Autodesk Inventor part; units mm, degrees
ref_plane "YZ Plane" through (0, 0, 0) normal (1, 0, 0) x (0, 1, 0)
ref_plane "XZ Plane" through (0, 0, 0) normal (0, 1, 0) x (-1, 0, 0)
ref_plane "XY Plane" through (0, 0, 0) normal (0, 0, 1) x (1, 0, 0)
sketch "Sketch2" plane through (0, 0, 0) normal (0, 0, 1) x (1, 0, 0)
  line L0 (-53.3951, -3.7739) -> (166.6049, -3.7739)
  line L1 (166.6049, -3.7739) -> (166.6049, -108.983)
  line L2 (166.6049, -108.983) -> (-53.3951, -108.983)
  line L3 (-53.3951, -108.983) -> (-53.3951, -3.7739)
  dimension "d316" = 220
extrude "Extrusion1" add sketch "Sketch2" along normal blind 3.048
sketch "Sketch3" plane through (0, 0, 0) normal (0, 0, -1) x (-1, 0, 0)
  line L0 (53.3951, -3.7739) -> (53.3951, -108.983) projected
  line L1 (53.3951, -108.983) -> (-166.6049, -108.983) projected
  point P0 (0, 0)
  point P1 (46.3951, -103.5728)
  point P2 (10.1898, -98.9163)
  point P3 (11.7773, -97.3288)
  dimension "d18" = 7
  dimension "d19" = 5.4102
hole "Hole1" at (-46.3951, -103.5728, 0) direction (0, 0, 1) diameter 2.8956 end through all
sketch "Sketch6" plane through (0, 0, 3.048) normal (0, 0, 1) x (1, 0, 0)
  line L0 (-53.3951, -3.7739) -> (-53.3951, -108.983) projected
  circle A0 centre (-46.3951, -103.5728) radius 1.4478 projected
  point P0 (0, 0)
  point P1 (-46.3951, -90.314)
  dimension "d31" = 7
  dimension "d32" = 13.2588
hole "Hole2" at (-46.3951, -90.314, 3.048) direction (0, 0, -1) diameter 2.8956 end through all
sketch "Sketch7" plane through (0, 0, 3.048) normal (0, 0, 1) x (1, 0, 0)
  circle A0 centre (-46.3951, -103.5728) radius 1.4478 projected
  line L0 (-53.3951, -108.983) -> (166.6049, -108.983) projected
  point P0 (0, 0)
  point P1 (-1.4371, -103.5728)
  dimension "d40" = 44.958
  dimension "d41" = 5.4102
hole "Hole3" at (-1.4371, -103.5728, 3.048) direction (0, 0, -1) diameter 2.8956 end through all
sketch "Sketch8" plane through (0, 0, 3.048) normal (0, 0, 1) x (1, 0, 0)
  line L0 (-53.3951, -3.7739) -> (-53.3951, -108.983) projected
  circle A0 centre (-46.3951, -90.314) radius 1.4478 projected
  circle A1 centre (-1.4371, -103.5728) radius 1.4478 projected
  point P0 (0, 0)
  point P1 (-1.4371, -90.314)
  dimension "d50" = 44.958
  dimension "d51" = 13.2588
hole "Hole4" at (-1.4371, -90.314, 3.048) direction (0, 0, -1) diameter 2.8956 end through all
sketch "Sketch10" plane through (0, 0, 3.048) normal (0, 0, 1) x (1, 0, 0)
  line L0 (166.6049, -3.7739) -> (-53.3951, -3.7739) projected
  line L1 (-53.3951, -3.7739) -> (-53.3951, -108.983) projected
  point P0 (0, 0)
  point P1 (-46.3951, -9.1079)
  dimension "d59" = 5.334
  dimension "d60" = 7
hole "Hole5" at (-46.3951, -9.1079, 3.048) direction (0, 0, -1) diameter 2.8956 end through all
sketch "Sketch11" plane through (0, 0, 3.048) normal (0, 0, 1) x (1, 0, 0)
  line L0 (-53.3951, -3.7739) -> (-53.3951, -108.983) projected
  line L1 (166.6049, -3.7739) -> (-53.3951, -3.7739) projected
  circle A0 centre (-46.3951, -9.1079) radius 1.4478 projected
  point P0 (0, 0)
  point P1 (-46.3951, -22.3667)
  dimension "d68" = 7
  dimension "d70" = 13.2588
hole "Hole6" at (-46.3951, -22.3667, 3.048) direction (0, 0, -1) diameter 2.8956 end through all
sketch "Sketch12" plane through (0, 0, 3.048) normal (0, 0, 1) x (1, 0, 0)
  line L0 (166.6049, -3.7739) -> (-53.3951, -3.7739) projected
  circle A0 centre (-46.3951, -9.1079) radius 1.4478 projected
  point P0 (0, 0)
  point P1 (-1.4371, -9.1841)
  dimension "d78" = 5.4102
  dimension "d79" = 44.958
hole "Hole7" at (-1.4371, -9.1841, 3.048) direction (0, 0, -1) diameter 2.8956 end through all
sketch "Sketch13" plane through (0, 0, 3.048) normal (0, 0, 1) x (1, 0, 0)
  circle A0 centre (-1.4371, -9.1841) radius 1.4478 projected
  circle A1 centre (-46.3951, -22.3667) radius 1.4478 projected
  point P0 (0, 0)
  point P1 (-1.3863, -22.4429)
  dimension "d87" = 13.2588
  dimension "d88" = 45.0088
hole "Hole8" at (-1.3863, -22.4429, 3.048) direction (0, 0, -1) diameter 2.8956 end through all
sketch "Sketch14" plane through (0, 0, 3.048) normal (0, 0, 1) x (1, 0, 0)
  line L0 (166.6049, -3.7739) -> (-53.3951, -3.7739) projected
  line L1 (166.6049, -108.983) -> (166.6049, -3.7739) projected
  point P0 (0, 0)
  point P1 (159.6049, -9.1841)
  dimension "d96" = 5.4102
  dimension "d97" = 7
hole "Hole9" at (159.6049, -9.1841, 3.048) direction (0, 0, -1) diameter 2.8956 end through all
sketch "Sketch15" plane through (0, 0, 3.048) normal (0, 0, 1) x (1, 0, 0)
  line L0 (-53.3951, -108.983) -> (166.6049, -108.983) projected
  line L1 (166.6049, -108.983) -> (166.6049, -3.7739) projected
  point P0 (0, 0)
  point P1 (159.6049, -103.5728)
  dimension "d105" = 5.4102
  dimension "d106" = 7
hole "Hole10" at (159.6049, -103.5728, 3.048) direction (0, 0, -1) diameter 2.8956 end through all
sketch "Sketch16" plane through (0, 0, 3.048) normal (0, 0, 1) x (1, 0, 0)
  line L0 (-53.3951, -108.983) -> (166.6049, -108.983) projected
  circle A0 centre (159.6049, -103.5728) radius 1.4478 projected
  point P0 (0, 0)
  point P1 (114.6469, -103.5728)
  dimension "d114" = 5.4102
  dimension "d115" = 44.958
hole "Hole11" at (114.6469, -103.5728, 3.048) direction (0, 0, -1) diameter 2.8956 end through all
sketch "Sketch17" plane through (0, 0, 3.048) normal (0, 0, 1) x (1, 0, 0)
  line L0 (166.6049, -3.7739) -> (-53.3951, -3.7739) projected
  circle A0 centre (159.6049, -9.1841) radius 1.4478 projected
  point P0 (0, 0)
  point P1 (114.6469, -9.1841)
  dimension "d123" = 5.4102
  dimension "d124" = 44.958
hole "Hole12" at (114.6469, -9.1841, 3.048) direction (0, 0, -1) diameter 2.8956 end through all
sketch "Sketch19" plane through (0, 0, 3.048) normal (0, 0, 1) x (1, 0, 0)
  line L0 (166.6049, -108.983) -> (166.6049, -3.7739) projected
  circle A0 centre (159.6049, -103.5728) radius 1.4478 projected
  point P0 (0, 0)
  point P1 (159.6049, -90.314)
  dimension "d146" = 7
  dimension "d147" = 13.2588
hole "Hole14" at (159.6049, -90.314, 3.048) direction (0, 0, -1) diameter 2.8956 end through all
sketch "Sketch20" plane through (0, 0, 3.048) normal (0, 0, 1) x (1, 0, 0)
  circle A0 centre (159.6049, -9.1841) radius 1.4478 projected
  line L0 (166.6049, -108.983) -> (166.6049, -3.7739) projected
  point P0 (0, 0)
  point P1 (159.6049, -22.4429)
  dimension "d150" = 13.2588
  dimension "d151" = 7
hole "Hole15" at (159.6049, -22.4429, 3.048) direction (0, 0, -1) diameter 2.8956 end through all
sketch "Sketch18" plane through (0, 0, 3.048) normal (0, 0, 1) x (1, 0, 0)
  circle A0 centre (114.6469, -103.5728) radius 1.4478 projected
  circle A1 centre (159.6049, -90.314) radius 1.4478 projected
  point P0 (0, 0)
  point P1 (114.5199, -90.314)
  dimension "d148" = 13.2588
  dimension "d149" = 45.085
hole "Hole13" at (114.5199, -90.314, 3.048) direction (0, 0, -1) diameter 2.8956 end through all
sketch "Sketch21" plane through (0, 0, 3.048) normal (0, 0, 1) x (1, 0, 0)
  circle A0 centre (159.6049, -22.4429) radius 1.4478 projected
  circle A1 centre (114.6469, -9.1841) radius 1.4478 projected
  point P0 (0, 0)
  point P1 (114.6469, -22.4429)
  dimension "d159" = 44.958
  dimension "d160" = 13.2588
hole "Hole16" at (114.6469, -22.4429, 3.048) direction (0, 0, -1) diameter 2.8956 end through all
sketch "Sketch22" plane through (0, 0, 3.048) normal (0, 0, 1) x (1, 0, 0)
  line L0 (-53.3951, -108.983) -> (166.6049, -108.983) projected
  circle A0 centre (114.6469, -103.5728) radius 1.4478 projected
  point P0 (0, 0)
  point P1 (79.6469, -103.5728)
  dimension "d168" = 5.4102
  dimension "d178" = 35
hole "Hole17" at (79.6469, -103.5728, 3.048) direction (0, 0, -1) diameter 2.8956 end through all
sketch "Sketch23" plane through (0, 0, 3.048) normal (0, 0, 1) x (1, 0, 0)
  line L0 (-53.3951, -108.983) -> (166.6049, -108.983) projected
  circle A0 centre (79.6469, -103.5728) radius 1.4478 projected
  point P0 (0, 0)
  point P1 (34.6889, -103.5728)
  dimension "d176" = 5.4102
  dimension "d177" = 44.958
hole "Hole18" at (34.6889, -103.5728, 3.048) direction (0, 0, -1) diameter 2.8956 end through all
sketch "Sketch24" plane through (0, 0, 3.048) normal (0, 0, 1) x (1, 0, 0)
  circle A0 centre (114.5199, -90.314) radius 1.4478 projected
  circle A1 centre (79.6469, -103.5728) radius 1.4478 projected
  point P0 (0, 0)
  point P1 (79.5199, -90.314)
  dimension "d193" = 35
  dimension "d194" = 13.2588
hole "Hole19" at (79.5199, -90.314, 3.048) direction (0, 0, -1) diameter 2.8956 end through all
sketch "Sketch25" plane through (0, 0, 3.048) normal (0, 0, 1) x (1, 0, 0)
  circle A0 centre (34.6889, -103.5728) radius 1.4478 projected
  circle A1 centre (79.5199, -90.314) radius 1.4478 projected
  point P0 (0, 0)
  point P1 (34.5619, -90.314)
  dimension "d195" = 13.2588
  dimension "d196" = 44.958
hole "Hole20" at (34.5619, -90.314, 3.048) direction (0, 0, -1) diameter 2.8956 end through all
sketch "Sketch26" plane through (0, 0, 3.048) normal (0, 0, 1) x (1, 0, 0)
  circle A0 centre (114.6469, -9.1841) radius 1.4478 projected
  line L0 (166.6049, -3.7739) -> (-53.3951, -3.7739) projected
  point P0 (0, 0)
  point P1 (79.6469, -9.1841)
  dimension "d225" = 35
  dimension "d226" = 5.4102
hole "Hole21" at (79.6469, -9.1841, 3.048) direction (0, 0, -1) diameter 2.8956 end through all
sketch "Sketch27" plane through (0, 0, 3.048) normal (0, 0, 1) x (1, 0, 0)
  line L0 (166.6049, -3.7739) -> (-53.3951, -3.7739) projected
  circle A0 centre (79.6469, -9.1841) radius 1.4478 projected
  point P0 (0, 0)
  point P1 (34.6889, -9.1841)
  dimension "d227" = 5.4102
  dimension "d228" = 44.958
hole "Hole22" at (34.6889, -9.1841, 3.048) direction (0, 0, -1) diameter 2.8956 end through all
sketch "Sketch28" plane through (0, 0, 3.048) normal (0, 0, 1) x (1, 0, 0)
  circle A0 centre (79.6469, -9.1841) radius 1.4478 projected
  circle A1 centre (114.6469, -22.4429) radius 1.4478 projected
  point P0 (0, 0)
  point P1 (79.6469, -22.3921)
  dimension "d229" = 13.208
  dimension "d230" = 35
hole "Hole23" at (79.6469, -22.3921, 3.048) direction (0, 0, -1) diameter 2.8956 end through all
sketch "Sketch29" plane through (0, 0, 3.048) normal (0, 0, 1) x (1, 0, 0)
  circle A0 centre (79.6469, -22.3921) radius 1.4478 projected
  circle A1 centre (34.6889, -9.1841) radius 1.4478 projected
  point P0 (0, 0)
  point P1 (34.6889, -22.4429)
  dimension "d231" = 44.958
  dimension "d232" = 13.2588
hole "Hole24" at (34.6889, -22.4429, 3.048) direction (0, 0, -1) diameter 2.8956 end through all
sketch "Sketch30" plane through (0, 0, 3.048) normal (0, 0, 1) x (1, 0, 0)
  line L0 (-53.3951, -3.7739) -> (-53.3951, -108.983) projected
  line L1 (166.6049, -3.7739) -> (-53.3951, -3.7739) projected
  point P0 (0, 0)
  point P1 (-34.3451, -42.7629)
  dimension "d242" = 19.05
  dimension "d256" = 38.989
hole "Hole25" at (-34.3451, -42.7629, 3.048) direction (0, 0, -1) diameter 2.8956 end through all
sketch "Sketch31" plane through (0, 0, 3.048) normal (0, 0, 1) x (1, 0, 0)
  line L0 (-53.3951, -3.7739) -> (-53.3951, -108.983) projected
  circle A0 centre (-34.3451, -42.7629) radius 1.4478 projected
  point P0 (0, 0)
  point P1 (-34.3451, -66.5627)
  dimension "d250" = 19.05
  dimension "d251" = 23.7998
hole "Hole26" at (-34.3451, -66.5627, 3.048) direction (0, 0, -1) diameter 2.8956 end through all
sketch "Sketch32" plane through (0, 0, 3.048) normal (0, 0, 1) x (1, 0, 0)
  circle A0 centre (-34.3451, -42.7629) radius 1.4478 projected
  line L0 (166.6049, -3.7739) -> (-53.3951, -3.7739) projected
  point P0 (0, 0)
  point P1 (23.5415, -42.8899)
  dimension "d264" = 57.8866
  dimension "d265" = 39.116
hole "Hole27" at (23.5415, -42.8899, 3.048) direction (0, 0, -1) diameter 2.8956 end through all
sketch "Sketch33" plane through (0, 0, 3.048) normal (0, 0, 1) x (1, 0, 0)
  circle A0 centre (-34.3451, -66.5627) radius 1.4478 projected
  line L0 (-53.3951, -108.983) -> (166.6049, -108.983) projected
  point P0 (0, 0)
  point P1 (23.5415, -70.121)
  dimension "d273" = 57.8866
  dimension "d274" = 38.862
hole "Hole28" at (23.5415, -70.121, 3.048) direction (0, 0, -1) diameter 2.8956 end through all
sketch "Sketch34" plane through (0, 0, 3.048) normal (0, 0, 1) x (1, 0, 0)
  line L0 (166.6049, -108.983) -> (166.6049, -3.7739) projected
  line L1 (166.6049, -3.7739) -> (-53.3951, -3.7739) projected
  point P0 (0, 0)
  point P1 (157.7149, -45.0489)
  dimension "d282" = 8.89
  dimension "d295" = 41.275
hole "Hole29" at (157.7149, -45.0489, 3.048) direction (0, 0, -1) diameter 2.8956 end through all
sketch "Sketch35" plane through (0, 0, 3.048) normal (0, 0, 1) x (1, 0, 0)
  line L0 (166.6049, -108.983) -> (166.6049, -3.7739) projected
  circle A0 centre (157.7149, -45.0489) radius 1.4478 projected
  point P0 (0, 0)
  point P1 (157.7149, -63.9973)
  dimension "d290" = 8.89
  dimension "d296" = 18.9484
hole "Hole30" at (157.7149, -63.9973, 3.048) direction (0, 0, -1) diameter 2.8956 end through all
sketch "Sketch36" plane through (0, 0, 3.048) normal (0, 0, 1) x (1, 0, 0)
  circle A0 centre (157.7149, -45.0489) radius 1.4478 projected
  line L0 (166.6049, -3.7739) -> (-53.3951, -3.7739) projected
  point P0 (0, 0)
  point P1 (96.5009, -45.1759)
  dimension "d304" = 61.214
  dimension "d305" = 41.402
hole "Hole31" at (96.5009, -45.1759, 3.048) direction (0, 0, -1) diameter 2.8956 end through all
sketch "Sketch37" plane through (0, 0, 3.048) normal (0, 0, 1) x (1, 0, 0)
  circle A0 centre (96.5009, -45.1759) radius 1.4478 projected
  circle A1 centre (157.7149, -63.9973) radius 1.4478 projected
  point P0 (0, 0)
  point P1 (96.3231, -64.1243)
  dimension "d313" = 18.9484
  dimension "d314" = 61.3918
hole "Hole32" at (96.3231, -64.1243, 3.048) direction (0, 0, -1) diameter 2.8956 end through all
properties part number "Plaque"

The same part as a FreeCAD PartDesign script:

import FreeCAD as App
import Part
import Sketcher
Q = App.Units.Quantity


def add_polygon(sketch, points):
    """Adds a closed chain of lines whose ends are joined by coincident constraints."""
    first, n = sketch.GeometryCount, len(points)
    for a, b in zip(points, points[1:] + points[:1]):
        sketch.addGeometry(Part.LineSegment(App.Vector(*a, 0), App.Vector(*b, 0)), False)
    for i in range(n):
        sketch.addConstraint(Sketcher.Constraint("Coincident", first + i, 2, first + (i + 1) % n, 1))

doc = App.newDocument("Part")
body = doc.addObject("PartDesign::Body", "Body")

# Sketch on XY plane
sketch1 = doc.addObject("Sketcher::SketchObject", "Sketch")
body.addObject(sketch1)
sketch1.AttachmentSupport = (doc.XY_Plane, [""])
sketch1.MapMode = "FlatFace"
add_polygon(sketch1, [(167, -4), (-53, -4), (-53, -109), (167, -109)])  # lines 0-3
sketch1.addConstraint([
    Sketcher.Constraint("Horizontal", 0),
    Sketcher.Constraint("Vertical", 1),
    Sketcher.Constraint("Horizontal", 2),
    Sketcher.Constraint("Vertical", 3),
    Sketcher.Constraint("DistanceX", 0, 2, 0, 1, 220.0),
    Sketcher.Constraint("DistanceY", 1, 2, 1, 1, Q("4.1421 in")),
    Sketcher.Constraint("DistanceX", 0, 2, -1, 1, 53.395),
    Sketcher.Constraint("DistanceY", 0, 2, -1, 1, 3.774),
])
pad1 = doc.addObject("PartDesign::Pad", "Pad")
body.addObject(pad1)
pad1.Profile = sketch1
pad1.Length = Q("0.12 in")

# Sketch on XY plane
sketch2 = doc.addObject("Sketcher::SketchObject", "Sketch001")
body.addObject(sketch2)
sketch2.AttachmentSupport = (doc.XY_Plane, [""])
sketch2.MapMode = "FlatFace"
sketch2.addGeometry(Part.Circle(App.Vector(-46.4, -103.6, 0), App.Vector(0, 0, 1), 1.4), False)
sketch2.addConstraint([
    Sketcher.Constraint("Diameter", 0, Q("0.114 in")),
    Sketcher.Constraint("DistanceX", 0, 3, -1, 1, 46.395),
    Sketcher.Constraint("DistanceY", 0, 3, -1, 1, 103.5728),
])
doc.recompute()
hole = doc.addObject("PartDesign::Hole", "Hole")
body.addObject(hole)
hole.Profile = sketch2
hole.ThreadType = "None"
hole.Diameter = Q("0.114 in")
hole.DepthType = "ThroughAll"
hole.Reversed = True

# Sketch on XY plane
sketch3 = doc.addObject("Sketcher::SketchObject", "Sketch002")
body.addObject(sketch3)
sketch3.AttachmentSupport = (doc.XY_Plane, [""])
sketch3.MapMode = "FlatFace"
sketch3.AttachmentOffset = App.Placement(App.Vector(0, 0, 0.12 * 25.4), App.Rotation())
sketch3.addGeometry(Part.Circle(App.Vector(-46.4, -90.3, 0), App.Vector(0, 0, 1), 1.4), False)
sketch3.addConstraint([
    Sketcher.Constraint("Diameter", 0, Q("0.114 in")),
    Sketcher.Constraint("DistanceX", 0, 3, -1, 1, 46.395),
    Sketcher.Constraint("DistanceY", 0, 3, -1, 1, 90.314),
])
doc.recompute()
hole2 = doc.addObject("PartDesign::Hole", "Hole001")
body.addObject(hole2)
hole2.Profile = sketch3
hole2.ThreadType = "None"
hole2.Diameter = Q("0.114 in")
hole2.DepthType = "ThroughAll"

# Sketch on XY plane
sketch4 = doc.addObject("Sketcher::SketchObject", "Sketch003")
body.addObject(sketch4)
sketch4.AttachmentSupport = (doc.XY_Plane, [""])
sketch4.MapMode = "FlatFace"
sketch4.AttachmentOffset = App.Placement(App.Vector(0, 0, 0.12 * 25.4), App.Rotation())
sketch4.addGeometry(Part.Circle(App.Vector(-1.4, -103.6, 0), App.Vector(0, 0, 1), 1.4), False)
sketch4.addConstraint([
    Sketcher.Constraint("Diameter", 0, Q("0.114 in")),
    Sketcher.Constraint("DistanceX", 0, 3, -1, 1, 1.437),
    Sketcher.Constraint("DistanceY", 0, 3, -1, 1, 103.5728),
])
doc.recompute()
hole3 = doc.addObject("PartDesign::Hole", "Hole002")
body.addObject(hole3)
hole3.Profile = sketch4
hole3.ThreadType = "None"
hole3.Diameter = Q("0.114 in")
hole3.DepthType = "ThroughAll"

# Sketch on XY plane
sketch5 = doc.addObject("Sketcher::SketchObject", "Sketch004")
body.addObject(sketch5)
sketch5.AttachmentSupport = (doc.XY_Plane, [""])
sketch5.MapMode = "FlatFace"
sketch5.AttachmentOffset = App.Placement(App.Vector(0, 0, 0.12 * 25.4), App.Rotation())
sketch5.addGeometry(Part.Circle(App.Vector(-1.4, -90.3, 0), App.Vector(0, 0, 1), 1.4), False)
sketch5.addConstraint([
    Sketcher.Constraint("Diameter", 0, Q("0.114 in")),
    Sketcher.Constraint("DistanceX", 0, 3, -1, 1, 1.437),
    Sketcher.Constraint("DistanceY", 0, 3, -1, 1, 90.314),
])
doc.recompute()
hole4 = doc.addObject("PartDesign::Hole", "Hole003")
body.addObject(hole4)
hole4.Profile = sketch5
hole4.ThreadType = "None"
hole4.Diameter = Q("0.114 in")
hole4.DepthType = "ThroughAll"

# Sketch on XY plane
sketch6 = doc.addObject("Sketcher::SketchObject", "Sketch005")
body.addObject(sketch6)
sketch6.AttachmentSupport = (doc.XY_Plane, [""])
sketch6.MapMode = "FlatFace"
sketch6.AttachmentOffset = App.Placement(App.Vector(0, 0, 0.12 * 25.4), App.Rotation())
sketch6.addGeometry(Part.Circle(App.Vector(-46.4, -9.1, 0), App.Vector(0, 0, 1), 1.4), False)
sketch6.addConstraint([
    Sketcher.Constraint("Diameter", 0, Q("0.114 in")),
    Sketcher.Constraint("DistanceX", 0, 3, -1, 1, 46.395),
    Sketcher.Constraint("DistanceY", 0, 3, -1, 1, 9.108),
])
doc.recompute()
hole5 = doc.addObject("PartDesign::Hole", "Hole004")
body.addObject(hole5)
hole5.Profile = sketch6
hole5.ThreadType = "None"
hole5.Diameter = Q("0.114 in")
hole5.DepthType = "ThroughAll"

# Sketch on XY plane
sketch7 = doc.addObject("Sketcher::SketchObject", "Sketch006")
body.addObject(sketch7)
sketch7.AttachmentSupport = (doc.XY_Plane, [""])
sketch7.MapMode = "FlatFace"
sketch7.AttachmentOffset = App.Placement(App.Vector(0, 0, 0.12 * 25.4), App.Rotation())
sketch7.addGeometry(Part.Circle(App.Vector(-46.4, -22.4, 0), App.Vector(0, 0, 1), 1.4), False)
sketch7.addConstraint([
    Sketcher.Constraint("Diameter", 0, Q("0.114 in")),
    Sketcher.Constraint("DistanceX", 0, 3, -1, 1, 46.395),
    Sketcher.Constraint("DistanceY", 0, 3, -1, 1, 22.3667),
])
doc.recompute()
hole6 = doc.addObject("PartDesign::Hole", "Hole005")
body.addObject(hole6)
hole6.Profile = sketch7
hole6.ThreadType = "None"
hole6.Diameter = Q("0.114 in")
hole6.DepthType = "ThroughAll"

# Sketch on XY plane
sketch8 = doc.addObject("Sketcher::SketchObject", "Sketch007")
body.addObject(sketch8)
sketch8.AttachmentSupport = (doc.XY_Plane, [""])
sketch8.MapMode = "FlatFace"
sketch8.AttachmentOffset = App.Placement(App.Vector(0, 0, 0.12 * 25.4), App.Rotation())
sketch8.addGeometry(Part.Circle(App.Vector(-1.4, -9.2, 0), App.Vector(0, 0, 1), 1.4), False)
sketch8.addConstraint([
    Sketcher.Constraint("Diameter", 0, Q("0.114 in")),
    Sketcher.Constraint("DistanceX", 0, 3, -1, 1, 1.437),
    Sketcher.Constraint("DistanceY", 0, 3, -1, 1, 9.184),
])
doc.recompute()
hole7 = doc.addObject("PartDesign::Hole", "Hole006")
body.addObject(hole7)
hole7.Profile = sketch8
hole7.ThreadType = "None"
hole7.Diameter = Q("0.114 in")
hole7.DepthType = "ThroughAll"

# Sketch on XY plane
sketch9 = doc.addObject("Sketcher::SketchObject", "Sketch008")
body.addObject(sketch9)
sketch9.AttachmentSupport = (doc.XY_Plane, [""])
sketch9.MapMode = "FlatFace"
sketch9.AttachmentOffset = App.Placement(App.Vector(0, 0, 0.12 * 25.4), App.Rotation())
sketch9.addGeometry(Part.Circle(App.Vector(-1.4, -22.4, 0), App.Vector(0, 0, 1), 1.4), False)
sketch9.addConstraint([
    Sketcher.Constraint("Diameter", 0, Q("0.114 in")),
    Sketcher.Constraint("DistanceX", 0, 3, -1, 1, 1.3863),
    Sketcher.Constraint("DistanceY", 0, 3, -1, 1, 22.443),
])
doc.recompute()
hole8 = doc.addObject("PartDesign::Hole", "Hole007")
body.addObject(hole8)
hole8.Profile = sketch9
hole8.ThreadType = "None"
hole8.Diameter = Q("0.114 in")
hole8.DepthType = "ThroughAll"

# Sketch on XY plane
sketch10 = doc.addObject("Sketcher::SketchObject", "Sketch009")
body.addObject(sketch10)
sketch10.AttachmentSupport = (doc.XY_Plane, [""])
sketch10.MapMode = "FlatFace"
sketch10.AttachmentOffset = App.Placement(App.Vector(0, 0, 0.12 * 25.4), App.Rotation())
sketch10.addGeometry(Part.Circle(App.Vector(159.6, -9.2, 0), App.Vector(0, 0, 1), 1.4), False)
sketch10.addConstraint([
    Sketcher.Constraint("Diameter", 0, Q("0.114 in")),
    Sketcher.Constraint("DistanceX", -1, 1, 0, 3, 159.605),
    Sketcher.Constraint("DistanceY", 0, 3, -1, 1, 9.184),
])
doc.recompute()
hole9 = doc.addObject("PartDesign::Hole", "Hole008")
body.addObject(hole9)
hole9.Profile = sketch10
hole9.ThreadType = "None"
hole9.Diameter = Q("0.114 in")
hole9.DepthType = "ThroughAll"

# Sketch on XY plane
sketch11 = doc.addObject("Sketcher::SketchObject", "Sketch010")
body.addObject(sketch11)
sketch11.AttachmentSupport = (doc.XY_Plane, [""])
sketch11.MapMode = "FlatFace"
sketch11.AttachmentOffset = App.Placement(App.Vector(0, 0, 0.12 * 25.4), App.Rotation())
sketch11.addGeometry(Part.Circle(App.Vector(159.6, -103.6, 0), App.Vector(0, 0, 1), 1.4), False)
sketch11.addConstraint([
    Sketcher.Constraint("Diameter", 0, Q("0.114 in")),
    Sketcher.Constraint("DistanceX", -1, 1, 0, 3, 159.605),
    Sketcher.Constraint("DistanceY", 0, 3, -1, 1, 103.5728),
])
doc.recompute()
hole10 = doc.addObject("PartDesign::Hole", "Hole009")
body.addObject(hole10)
hole10.Profile = sketch11
hole10.ThreadType = "None"
hole10.Diameter = Q("0.114 in")
hole10.DepthType = "ThroughAll"

# Sketch on XY plane
sketch12 = doc.addObject("Sketcher::SketchObject", "Sketch011")
body.addObject(sketch12)
sketch12.AttachmentSupport = (doc.XY_Plane, [""])
sketch12.MapMode = "FlatFace"
sketch12.AttachmentOffset = App.Placement(App.Vector(0, 0, 0.12 * 25.4), App.Rotation())
sketch12.addGeometry(Part.Circle(App.Vector(114.6, -103.6, 0), App.Vector(0, 0, 1), 1.4), False)
sketch12.addConstraint([
    Sketcher.Constraint("Diameter", 0, Q("0.114 in")),
    Sketcher.Constraint("DistanceX", -1, 1, 0, 3, 114.647),
    Sketcher.Constraint("DistanceY", 0, 3, -1, 1, 103.5728),
])
doc.recompute()
hole11 = doc.addObject("PartDesign::Hole", "Hole010")
body.addObject(hole11)
hole11.Profile = sketch12
hole11.ThreadType = "None"
hole11.Diameter = Q("0.114 in")
hole11.DepthType = "ThroughAll"

# Sketch on XY plane
sketch13 = doc.addObject("Sketcher::SketchObject", "Sketch012")
body.addObject(sketch13)
sketch13.AttachmentSupport = (doc.XY_Plane, [""])
sketch13.MapMode = "FlatFace"
sketch13.AttachmentOffset = App.Placement(App.Vector(0, 0, 0.12 * 25.4), App.Rotation())
sketch13.addGeometry(Part.Circle(App.Vector(114.6, -9.2, 0), App.Vector(0, 0, 1), 1.4), False)
sketch13.addConstraint([
    Sketcher.Constraint("Diameter", 0, Q("0.114 in")),
    Sketcher.Constraint("DistanceX", -1, 1, 0, 3, 114.647),
    Sketcher.Constraint("DistanceY", 0, 3, -1, 1, 9.184),
])
doc.recompute()
hole12 = doc.addObject("PartDesign::Hole", "Hole011")
body.addObject(hole12)
hole12.Profile = sketch13
hole12.ThreadType = "None"
hole12.Diameter = Q("0.114 in")
hole12.DepthType = "ThroughAll"

# Sketch on XY plane
sketch14 = doc.addObject("Sketcher::SketchObject", "Sketch013")
body.addObject(sketch14)
sketch14.AttachmentSupport = (doc.XY_Plane, [""])
sketch14.MapMode = "FlatFace"
sketch14.AttachmentOffset = App.Placement(App.Vector(0, 0, 0.12 * 25.4), App.Rotation())
sketch14.addGeometry(Part.Circle(App.Vector(159.6, -90.3, 0), App.Vector(0, 0, 1), 1.4), False)
sketch14.addConstraint([
    Sketcher.Constraint("Diameter", 0, Q("0.114 in")),
    Sketcher.Constraint("DistanceX", -1, 1, 0, 3, 159.605),
    Sketcher.Constraint("DistanceY", 0, 3, -1, 1, 90.314),
])
doc.recompute()
hole13 = doc.addObject("PartDesign::Hole", "Hole012")
body.addObject(hole13)
hole13.Profile = sketch14
hole13.ThreadType = "None"
hole13.Diameter = Q("0.114 in")
hole13.DepthType = "ThroughAll"

# Sketch on XY plane
sketch15 = doc.addObject("Sketcher::SketchObject", "Sketch014")
body.addObject(sketch15)
sketch15.AttachmentSupport = (doc.XY_Plane, [""])
sketch15.MapMode = "FlatFace"
sketch15.AttachmentOffset = App.Placement(App.Vector(0, 0, 0.12 * 25.4), App.Rotation())
sketch15.addGeometry(Part.Circle(App.Vector(159.6, -22.4, 0), App.Vector(0, 0, 1), 1.4), False)
sketch15.addConstraint([
    Sketcher.Constraint("Diameter", 0, Q("0.114 in")),
    Sketcher.Constraint("DistanceX", -1, 1, 0, 3, 159.605),
    Sketcher.Constraint("DistanceY", 0, 3, -1, 1, 22.443),
])
doc.recompute()
hole14 = doc.addObject("PartDesign::Hole", "Hole013")
body.addObject(hole14)
hole14.Profile = sketch15
hole14.ThreadType = "None"
hole14.Diameter = Q("0.114 in")
hole14.DepthType = "ThroughAll"

# Sketch on XY plane
sketch16 = doc.addObject("Sketcher::SketchObject", "Sketch015")
body.addObject(sketch16)
sketch16.AttachmentSupport = (doc.XY_Plane, [""])
sketch16.MapMode = "FlatFace"
sketch16.AttachmentOffset = App.Placement(App.Vector(0, 0, 0.12 * 25.4), App.Rotation())
sketch16.addGeometry(Part.Circle(App.Vector(114.5, -90.3, 0), App.Vector(0, 0, 1), 1.4), False)
sketch16.addConstraint([
    Sketcher.Constraint("Diameter", 0, Q("0.114 in")),
    Sketcher.Constraint("DistanceX", -1, 1, 0, 3, 114.52),
    Sketcher.Constraint("DistanceY", 0, 3, -1, 1, 90.314),
])
doc.recompute()
hole15 = doc.addObject("PartDesign::Hole", "Hole014")
body.addObject(hole15)
hole15.Profile = sketch16
hole15.ThreadType = "None"
hole15.Diameter = Q("0.114 in")
hole15.DepthType = "ThroughAll"

# Sketch on XY plane
sketch17 = doc.addObject("Sketcher::SketchObject", "Sketch016")
body.addObject(sketch17)
sketch17.AttachmentSupport = (doc.XY_Plane, [""])
sketch17.MapMode = "FlatFace"
sketch17.AttachmentOffset = App.Placement(App.Vector(0, 0, 0.12 * 25.4), App.Rotation())
sketch17.addGeometry(Part.Circle(App.Vector(114.6, -22.4, 0), App.Vector(0, 0, 1), 1.4), False)
sketch17.addConstraint([
    Sketcher.Constraint("Diameter", 0, Q("0.114 in")),
    Sketcher.Constraint("DistanceX", -1, 1, 0, 3, 114.647),
    Sketcher.Constraint("DistanceY", 0, 3, -1, 1, 22.443),
])
doc.recompute()
hole16 = doc.addObject("PartDesign::Hole", "Hole015")
body.addObject(hole16)
hole16.Profile = sketch17
hole16.ThreadType = "None"
hole16.Diameter = Q("0.114 in")
hole16.DepthType = "ThroughAll"

# Sketch on XY plane
sketch18 = doc.addObject("Sketcher::SketchObject", "Sketch017")
body.addObject(sketch18)
sketch18.AttachmentSupport = (doc.XY_Plane, [""])
sketch18.MapMode = "FlatFace"
sketch18.AttachmentOffset = App.Placement(App.Vector(0, 0, 0.12 * 25.4), App.Rotation())
sketch18.addGeometry(Part.Circle(App.Vector(79.6, -103.6, 0), App.Vector(0, 0, 1), 1.4), False)
sketch18.addConstraint([
    Sketcher.Constraint("Diameter", 0, Q("0.114 in")),
    Sketcher.Constraint("DistanceX", -1, 1, 0, 3, Q("3.1357 in")),
    Sketcher.Constraint("DistanceY", 0, 3, -1, 1, 103.5728),
])
doc.recompute()
hole17 = doc.addObject("PartDesign::Hole", "Hole016")
body.addObject(hole17)
hole17.Profile = sketch18
hole17.ThreadType = "None"
hole17.Diameter = Q("0.114 in")
hole17.DepthType = "ThroughAll"

# Sketch on XY plane
sketch19 = doc.addObject("Sketcher::SketchObject", "Sketch018")
body.addObject(sketch19)
sketch19.AttachmentSupport = (doc.XY_Plane, [""])
sketch19.MapMode = "FlatFace"
sketch19.AttachmentOffset = App.Placement(App.Vector(0, 0, 0.12 * 25.4), App.Rotation())
sketch19.addGeometry(Part.Circle(App.Vector(34.7, -103.6, 0), App.Vector(0, 0, 1), 1.4), False)
sketch19.addConstraint([
    Sketcher.Constraint("Diameter", 0, Q("0.114 in")),
    Sketcher.Constraint("DistanceX", -1, 1, 0, 3, Q("1.3657 in")),
    Sketcher.Constraint("DistanceY", 0, 3, -1, 1, 103.5728),
])
doc.recompute()
hole18 = doc.addObject("PartDesign::Hole", "Hole017")
body.addObject(hole18)
hole18.Profile = sketch19
hole18.ThreadType = "None"
hole18.Diameter = Q("0.114 in")
hole18.DepthType = "ThroughAll"

# Sketch on XY plane
sketch20 = doc.addObject("Sketcher::SketchObject", "Sketch019")
body.addObject(sketch20)
sketch20.AttachmentSupport = (doc.XY_Plane, [""])
sketch20.MapMode = "FlatFace"
sketch20.AttachmentOffset = App.Placement(App.Vector(0, 0, 0.12 * 25.4), App.Rotation())
sketch20.addGeometry(Part.Circle(App.Vector(79.5, -90.3, 0), App.Vector(0, 0, 1), 1.4), False)
sketch20.addConstraint([
    Sketcher.Constraint("Diameter", 0, Q("0.114 in")),
    Sketcher.Constraint("DistanceX", -1, 1, 0, 3, Q("3.1307 in")),
    Sketcher.Constraint("DistanceY", 0, 3, -1, 1, 90.314),
])
doc.recompute()
hole19 = doc.addObject("PartDesign::Hole", "Hole018")
body.addObject(hole19)
hole19.Profile = sketch20
hole19.ThreadType = "None"
hole19.Diameter = Q("0.114 in")
hole19.DepthType = "ThroughAll"

# Sketch on XY plane
sketch21 = doc.addObject("Sketcher::SketchObject", "Sketch020")
body.addObject(sketch21)
sketch21.AttachmentSupport = (doc.XY_Plane, [""])
sketch21.MapMode = "FlatFace"
sketch21.AttachmentOffset = App.Placement(App.Vector(0, 0, 0.12 * 25.4), App.Rotation())
sketch21.addGeometry(Part.Circle(App.Vector(34.6, -90.3, 0), App.Vector(0, 0, 1), 1.4), False)
sketch21.addConstraint([
    Sketcher.Constraint("Diameter", 0, Q("0.114 in")),
    Sketcher.Constraint("DistanceX", -1, 1, 0, 3, Q("1.3607 in")),
    Sketcher.Constraint("DistanceY", 0, 3, -1, 1, 90.314),
])
doc.recompute()
hole20 = doc.addObject("PartDesign::Hole", "Hole019")
body.addObject(hole20)
hole20.Profile = sketch21
hole20.ThreadType = "None"
hole20.Diameter = Q("0.114 in")
hole20.DepthType = "ThroughAll"

# Sketch on XY plane
sketch22 = doc.addObject("Sketcher::SketchObject", "Sketch021")
body.addObject(sketch22)
sketch22.AttachmentSupport = (doc.XY_Plane, [""])
sketch22.MapMode = "FlatFace"
sketch22.AttachmentOffset = App.Placement(App.Vector(0, 0, 0.12 * 25.4), App.Rotation())
sketch22.addGeometry(Part.Circle(App.Vector(79.6, -9.2, 0), App.Vector(0, 0, 1), 1.4), False)
sketch22.addConstraint([
    Sketcher.Constraint("Diameter", 0, Q("0.114 in")),
    Sketcher.Constraint("DistanceX", -1, 1, 0, 3, Q("3.1357 in")),
    Sketcher.Constraint("DistanceY", 0, 3, -1, 1, 9.184),
])
doc.recompute()
hole21 = doc.addObject("PartDesign::Hole", "Hole020")
body.addObject(hole21)
hole21.Profile = sketch22
hole21.ThreadType = "None"
hole21.Diameter = Q("0.114 in")
hole21.DepthType = "ThroughAll"

# Sketch on XY plane
sketch23 = doc.addObject("Sketcher::SketchObject", "Sketch022")
body.addObject(sketch23)
sketch23.AttachmentSupport = (doc.XY_Plane, [""])
sketch23.MapMode = "FlatFace"
sketch23.AttachmentOffset = App.Placement(App.Vector(0, 0, 0.12 * 25.4), App.Rotation())
sketch23.addGeometry(Part.Circle(App.Vector(34.7, -9.2, 0), App.Vector(0, 0, 1), 1.4), False)
sketch23.addConstraint([
    Sketcher.Constraint("Diameter", 0, Q("0.114 in")),
    Sketcher.Constraint("DistanceX", -1, 1, 0, 3, Q("1.3657 in")),
    Sketcher.Constraint("DistanceY", 0, 3, -1, 1, 9.184),
])
doc.recompute()
hole22 = doc.addObject("PartDesign::Hole", "Hole021")
body.addObject(hole22)
hole22.Profile = sketch23
hole22.ThreadType = "None"
hole22.Diameter = Q("0.114 in")
hole22.DepthType = "ThroughAll"

# Sketch on XY plane
sketch24 = doc.addObject("Sketcher::SketchObject", "Sketch023")
body.addObject(sketch24)
sketch24.AttachmentSupport = (doc.XY_Plane, [""])
sketch24.MapMode = "FlatFace"
sketch24.AttachmentOffset = App.Placement(App.Vector(0, 0, 0.12 * 25.4), App.Rotation())
sketch24.addGeometry(Part.Circle(App.Vector(79.6, -22.4, 0), App.Vector(0, 0, 1), 1.4), False)
sketch24.addConstraint([
    Sketcher.Constraint("Diameter", 0, Q("0.114 in")),
    Sketcher.Constraint("DistanceX", -1, 1, 0, 3, Q("3.1357 in")),
    Sketcher.Constraint("DistanceY", 0, 3, -1, 1, 22.392),
])
doc.recompute()
hole23 = doc.addObject("PartDesign::Hole", "Hole022")
body.addObject(hole23)
hole23.Profile = sketch24
hole23.ThreadType = "None"
hole23.Diameter = Q("0.114 in")
hole23.DepthType = "ThroughAll"

# Sketch on XY plane
sketch25 = doc.addObject("Sketcher::SketchObject", "Sketch024")
body.addObject(sketch25)
sketch25.AttachmentSupport = (doc.XY_Plane, [""])
sketch25.MapMode = "FlatFace"
sketch25.AttachmentOffset = App.Placement(App.Vector(0, 0, 0.12 * 25.4), App.Rotation())
sketch25.addGeometry(Part.Circle(App.Vector(34.7, -22.4, 0), App.Vector(0, 0, 1), 1.4), False)
sketch25.addConstraint([
    Sketcher.Constraint("Diameter", 0, Q("0.114 in")),
    Sketcher.Constraint("DistanceX", -1, 1, 0, 3, Q("1.3657 in")),
    Sketcher.Constraint("DistanceY", 0, 3, -1, 1, 22.443),
])
doc.recompute()
hole24 = doc.addObject("PartDesign::Hole", "Hole023")
body.addObject(hole24)
hole24.Profile = sketch25
hole24.ThreadType = "None"
hole24.Diameter = Q("0.114 in")
hole24.DepthType = "ThroughAll"

# Sketch on XY plane
sketch26 = doc.addObject("Sketcher::SketchObject", "Sketch025")
body.addObject(sketch26)
sketch26.AttachmentSupport = (doc.XY_Plane, [""])
sketch26.MapMode = "FlatFace"
sketch26.AttachmentOffset = App.Placement(App.Vector(0, 0, 0.12 * 25.4), App.Rotation())
sketch26.addGeometry(Part.Circle(App.Vector(-34.3, -42.8, 0), App.Vector(0, 0, 1), 1.4), False)
sketch26.addConstraint([
    Sketcher.Constraint("Diameter", 0, Q("0.114 in")),
    Sketcher.Constraint("DistanceX", 0, 3, -1, 1, 34.345),
    Sketcher.Constraint("DistanceY", 0, 3, -1, 1, 42.763),
])
doc.recompute()
hole25 = doc.addObject("PartDesign::Hole", "Hole024")
body.addObject(hole25)
hole25.Profile = sketch26
hole25.ThreadType = "None"
hole25.Diameter = Q("0.114 in")
hole25.DepthType = "ThroughAll"

# Sketch on XY plane
sketch27 = doc.addObject("Sketcher::SketchObject", "Sketch026")
body.addObject(sketch27)
sketch27.AttachmentSupport = (doc.XY_Plane, [""])
sketch27.MapMode = "FlatFace"
sketch27.AttachmentOffset = App.Placement(App.Vector(0, 0, 0.12 * 25.4), App.Rotation())
sketch27.addGeometry(Part.Circle(App.Vector(-34.3, -66.6, 0), App.Vector(0, 0, 1), 1.4), False)
sketch27.addConstraint([
    Sketcher.Constraint("Diameter", 0, Q("0.114 in")),
    Sketcher.Constraint("DistanceX", 0, 3, -1, 1, 34.345),
    Sketcher.Constraint("DistanceY", 0, 3, -1, 1, 66.5627),
])
doc.recompute()
hole26 = doc.addObject("PartDesign::Hole", "Hole025")
body.addObject(hole26)
hole26.Profile = sketch27
hole26.ThreadType = "None"
hole26.Diameter = Q("0.114 in")
hole26.DepthType = "ThroughAll"

# Sketch on XY plane
sketch28 = doc.addObject("Sketcher::SketchObject", "Sketch027")
body.addObject(sketch28)
sketch28.AttachmentSupport = (doc.XY_Plane, [""])
sketch28.MapMode = "FlatFace"
sketch28.AttachmentOffset = App.Placement(App.Vector(0, 0, 0.12 * 25.4), App.Rotation())
sketch28.addGeometry(Part.Circle(App.Vector(23.5, -42.9, 0), App.Vector(0, 0, 1), 1.4), False)
sketch28.addConstraint([
    Sketcher.Constraint("Diameter", 0, Q("0.114 in")),
    Sketcher.Constraint("DistanceX", -1, 1, 0, 3, 23.5415),
    Sketcher.Constraint("DistanceY", 0, 3, -1, 1, 42.89),
])
doc.recompute()
hole27 = doc.addObject("PartDesign::Hole", "Hole026")
body.addObject(hole27)
hole27.Profile = sketch28
hole27.ThreadType = "None"
hole27.Diameter = Q("0.114 in")
hole27.DepthType = "ThroughAll"

# Sketch on XY plane
sketch29 = doc.addObject("Sketcher::SketchObject", "Sketch028")
body.addObject(sketch29)
sketch29.AttachmentSupport = (doc.XY_Plane, [""])
sketch29.MapMode = "FlatFace"
sketch29.AttachmentOffset = App.Placement(App.Vector(0, 0, 0.12 * 25.4), App.Rotation())
sketch29.addGeometry(Part.Circle(App.Vector(23.5, -70.1, 0), App.Vector(0, 0, 1), 1.4), False)
sketch29.addConstraint([
    Sketcher.Constraint("Diameter", 0, Q("0.114 in")),
    Sketcher.Constraint("DistanceX", -1, 1, 0, 3, 23.5415),
    Sketcher.Constraint("DistanceY", 0, 3, -1, 1, 70.121),
])
doc.recompute()
hole28 = doc.addObject("PartDesign::Hole", "Hole027")
body.addObject(hole28)
hole28.Profile = sketch29
hole28.ThreadType = "None"
hole28.Diameter = Q("0.114 in")
hole28.DepthType = "ThroughAll"

# Sketch on XY plane
sketch30 = doc.addObject("Sketcher::SketchObject", "Sketch029")
body.addObject(sketch30)
sketch30.AttachmentSupport = (doc.XY_Plane, [""])
sketch30.MapMode = "FlatFace"
sketch30.AttachmentOffset = App.Placement(App.Vector(0, 0, 0.12 * 25.4), App.Rotation())
sketch30.addGeometry(Part.Circle(App.Vector(157.7, -45, 0), App.Vector(0, 0, 1), 1.4), False)
sketch30.addConstraint([
    Sketcher.Constraint("Diameter", 0, Q("0.114 in")),
    Sketcher.Constraint("DistanceX", -1, 1, 0, 3, 157.715),
    Sketcher.Constraint("DistanceY", 0, 3, -1, 1, 45.049),
])
doc.recompute()
hole29 = doc.addObject("PartDesign::Hole", "Hole028")
body.addObject(hole29)
hole29.Profile = sketch30
hole29.ThreadType = "None"
hole29.Diameter = Q("0.114 in")
hole29.DepthType = "ThroughAll"

# Sketch on XY plane
sketch31 = doc.addObject("Sketcher::SketchObject", "Sketch030")
body.addObject(sketch31)
sketch31.AttachmentSupport = (doc.XY_Plane, [""])
sketch31.MapMode = "FlatFace"
sketch31.AttachmentOffset = App.Placement(App.Vector(0, 0, 0.12 * 25.4), App.Rotation())
sketch31.addGeometry(Part.Circle(App.Vector(157.7, -64, 0), App.Vector(0, 0, 1), 1.4), False)
sketch31.addConstraint([
    Sketcher.Constraint("Diameter", 0, Q("0.114 in")),
    Sketcher.Constraint("DistanceX", -1, 1, 0, 3, 157.715),
    Sketcher.Constraint("DistanceY", 0, 3, -1, 1, 63.9973),
])
doc.recompute()
hole30 = doc.addObject("PartDesign::Hole", "Hole029")
body.addObject(hole30)
hole30.Profile = sketch31
hole30.ThreadType = "None"
hole30.Diameter = Q("0.114 in")
hole30.DepthType = "ThroughAll"

# Sketch on XY plane
sketch32 = doc.addObject("Sketcher::SketchObject", "Sketch031")
body.addObject(sketch32)
sketch32.AttachmentSupport = (doc.XY_Plane, [""])
sketch32.MapMode = "FlatFace"
sketch32.AttachmentOffset = App.Placement(App.Vector(0, 0, 0.12 * 25.4), App.Rotation())
sketch32.addGeometry(Part.Circle(App.Vector(96.5, -45.2, 0), App.Vector(0, 0, 1), 1.4), False)
sketch32.addConstraint([
    Sketcher.Constraint("Diameter", 0, Q("0.114 in")),
    Sketcher.Constraint("DistanceX", -1, 1, 0, 3, 96.501),
    Sketcher.Constraint("DistanceY", 0, 3, -1, 1, 45.176),
])
doc.recompute()
hole31 = doc.addObject("PartDesign::Hole", "Hole030")
body.addObject(hole31)
hole31.Profile = sketch32
hole31.ThreadType = "None"
hole31.Diameter = Q("0.114 in")
hole31.DepthType = "ThroughAll"

# Sketch on XY plane
sketch33 = doc.addObject("Sketcher::SketchObject", "Sketch032")
body.addObject(sketch33)
sketch33.AttachmentSupport = (doc.XY_Plane, [""])
sketch33.MapMode = "FlatFace"
sketch33.AttachmentOffset = App.Placement(App.Vector(0, 0, 0.12 * 25.4), App.Rotation())
sketch33.addGeometry(Part.Circle(App.Vector(96.3, -64.1, 0), App.Vector(0, 0, 1), 1.4), False)
sketch33.addConstraint([
    Sketcher.Constraint("Diameter", 0, Q("0.114 in")),
    Sketcher.Constraint("DistanceX", -1, 1, 0, 3, 96.323),
    Sketcher.Constraint("DistanceY", 0, 3, -1, 1, 64.1243),
])
doc.recompute()
hole32 = doc.addObject("PartDesign::Hole", "Hole031")
body.addObject(hole32)
hole32.Profile = sketch33
hole32.ThreadType = "None"
hole32.Diameter = Q("0.114 in")
hole32.DepthType = "ThroughAll"

doc.recompute()
